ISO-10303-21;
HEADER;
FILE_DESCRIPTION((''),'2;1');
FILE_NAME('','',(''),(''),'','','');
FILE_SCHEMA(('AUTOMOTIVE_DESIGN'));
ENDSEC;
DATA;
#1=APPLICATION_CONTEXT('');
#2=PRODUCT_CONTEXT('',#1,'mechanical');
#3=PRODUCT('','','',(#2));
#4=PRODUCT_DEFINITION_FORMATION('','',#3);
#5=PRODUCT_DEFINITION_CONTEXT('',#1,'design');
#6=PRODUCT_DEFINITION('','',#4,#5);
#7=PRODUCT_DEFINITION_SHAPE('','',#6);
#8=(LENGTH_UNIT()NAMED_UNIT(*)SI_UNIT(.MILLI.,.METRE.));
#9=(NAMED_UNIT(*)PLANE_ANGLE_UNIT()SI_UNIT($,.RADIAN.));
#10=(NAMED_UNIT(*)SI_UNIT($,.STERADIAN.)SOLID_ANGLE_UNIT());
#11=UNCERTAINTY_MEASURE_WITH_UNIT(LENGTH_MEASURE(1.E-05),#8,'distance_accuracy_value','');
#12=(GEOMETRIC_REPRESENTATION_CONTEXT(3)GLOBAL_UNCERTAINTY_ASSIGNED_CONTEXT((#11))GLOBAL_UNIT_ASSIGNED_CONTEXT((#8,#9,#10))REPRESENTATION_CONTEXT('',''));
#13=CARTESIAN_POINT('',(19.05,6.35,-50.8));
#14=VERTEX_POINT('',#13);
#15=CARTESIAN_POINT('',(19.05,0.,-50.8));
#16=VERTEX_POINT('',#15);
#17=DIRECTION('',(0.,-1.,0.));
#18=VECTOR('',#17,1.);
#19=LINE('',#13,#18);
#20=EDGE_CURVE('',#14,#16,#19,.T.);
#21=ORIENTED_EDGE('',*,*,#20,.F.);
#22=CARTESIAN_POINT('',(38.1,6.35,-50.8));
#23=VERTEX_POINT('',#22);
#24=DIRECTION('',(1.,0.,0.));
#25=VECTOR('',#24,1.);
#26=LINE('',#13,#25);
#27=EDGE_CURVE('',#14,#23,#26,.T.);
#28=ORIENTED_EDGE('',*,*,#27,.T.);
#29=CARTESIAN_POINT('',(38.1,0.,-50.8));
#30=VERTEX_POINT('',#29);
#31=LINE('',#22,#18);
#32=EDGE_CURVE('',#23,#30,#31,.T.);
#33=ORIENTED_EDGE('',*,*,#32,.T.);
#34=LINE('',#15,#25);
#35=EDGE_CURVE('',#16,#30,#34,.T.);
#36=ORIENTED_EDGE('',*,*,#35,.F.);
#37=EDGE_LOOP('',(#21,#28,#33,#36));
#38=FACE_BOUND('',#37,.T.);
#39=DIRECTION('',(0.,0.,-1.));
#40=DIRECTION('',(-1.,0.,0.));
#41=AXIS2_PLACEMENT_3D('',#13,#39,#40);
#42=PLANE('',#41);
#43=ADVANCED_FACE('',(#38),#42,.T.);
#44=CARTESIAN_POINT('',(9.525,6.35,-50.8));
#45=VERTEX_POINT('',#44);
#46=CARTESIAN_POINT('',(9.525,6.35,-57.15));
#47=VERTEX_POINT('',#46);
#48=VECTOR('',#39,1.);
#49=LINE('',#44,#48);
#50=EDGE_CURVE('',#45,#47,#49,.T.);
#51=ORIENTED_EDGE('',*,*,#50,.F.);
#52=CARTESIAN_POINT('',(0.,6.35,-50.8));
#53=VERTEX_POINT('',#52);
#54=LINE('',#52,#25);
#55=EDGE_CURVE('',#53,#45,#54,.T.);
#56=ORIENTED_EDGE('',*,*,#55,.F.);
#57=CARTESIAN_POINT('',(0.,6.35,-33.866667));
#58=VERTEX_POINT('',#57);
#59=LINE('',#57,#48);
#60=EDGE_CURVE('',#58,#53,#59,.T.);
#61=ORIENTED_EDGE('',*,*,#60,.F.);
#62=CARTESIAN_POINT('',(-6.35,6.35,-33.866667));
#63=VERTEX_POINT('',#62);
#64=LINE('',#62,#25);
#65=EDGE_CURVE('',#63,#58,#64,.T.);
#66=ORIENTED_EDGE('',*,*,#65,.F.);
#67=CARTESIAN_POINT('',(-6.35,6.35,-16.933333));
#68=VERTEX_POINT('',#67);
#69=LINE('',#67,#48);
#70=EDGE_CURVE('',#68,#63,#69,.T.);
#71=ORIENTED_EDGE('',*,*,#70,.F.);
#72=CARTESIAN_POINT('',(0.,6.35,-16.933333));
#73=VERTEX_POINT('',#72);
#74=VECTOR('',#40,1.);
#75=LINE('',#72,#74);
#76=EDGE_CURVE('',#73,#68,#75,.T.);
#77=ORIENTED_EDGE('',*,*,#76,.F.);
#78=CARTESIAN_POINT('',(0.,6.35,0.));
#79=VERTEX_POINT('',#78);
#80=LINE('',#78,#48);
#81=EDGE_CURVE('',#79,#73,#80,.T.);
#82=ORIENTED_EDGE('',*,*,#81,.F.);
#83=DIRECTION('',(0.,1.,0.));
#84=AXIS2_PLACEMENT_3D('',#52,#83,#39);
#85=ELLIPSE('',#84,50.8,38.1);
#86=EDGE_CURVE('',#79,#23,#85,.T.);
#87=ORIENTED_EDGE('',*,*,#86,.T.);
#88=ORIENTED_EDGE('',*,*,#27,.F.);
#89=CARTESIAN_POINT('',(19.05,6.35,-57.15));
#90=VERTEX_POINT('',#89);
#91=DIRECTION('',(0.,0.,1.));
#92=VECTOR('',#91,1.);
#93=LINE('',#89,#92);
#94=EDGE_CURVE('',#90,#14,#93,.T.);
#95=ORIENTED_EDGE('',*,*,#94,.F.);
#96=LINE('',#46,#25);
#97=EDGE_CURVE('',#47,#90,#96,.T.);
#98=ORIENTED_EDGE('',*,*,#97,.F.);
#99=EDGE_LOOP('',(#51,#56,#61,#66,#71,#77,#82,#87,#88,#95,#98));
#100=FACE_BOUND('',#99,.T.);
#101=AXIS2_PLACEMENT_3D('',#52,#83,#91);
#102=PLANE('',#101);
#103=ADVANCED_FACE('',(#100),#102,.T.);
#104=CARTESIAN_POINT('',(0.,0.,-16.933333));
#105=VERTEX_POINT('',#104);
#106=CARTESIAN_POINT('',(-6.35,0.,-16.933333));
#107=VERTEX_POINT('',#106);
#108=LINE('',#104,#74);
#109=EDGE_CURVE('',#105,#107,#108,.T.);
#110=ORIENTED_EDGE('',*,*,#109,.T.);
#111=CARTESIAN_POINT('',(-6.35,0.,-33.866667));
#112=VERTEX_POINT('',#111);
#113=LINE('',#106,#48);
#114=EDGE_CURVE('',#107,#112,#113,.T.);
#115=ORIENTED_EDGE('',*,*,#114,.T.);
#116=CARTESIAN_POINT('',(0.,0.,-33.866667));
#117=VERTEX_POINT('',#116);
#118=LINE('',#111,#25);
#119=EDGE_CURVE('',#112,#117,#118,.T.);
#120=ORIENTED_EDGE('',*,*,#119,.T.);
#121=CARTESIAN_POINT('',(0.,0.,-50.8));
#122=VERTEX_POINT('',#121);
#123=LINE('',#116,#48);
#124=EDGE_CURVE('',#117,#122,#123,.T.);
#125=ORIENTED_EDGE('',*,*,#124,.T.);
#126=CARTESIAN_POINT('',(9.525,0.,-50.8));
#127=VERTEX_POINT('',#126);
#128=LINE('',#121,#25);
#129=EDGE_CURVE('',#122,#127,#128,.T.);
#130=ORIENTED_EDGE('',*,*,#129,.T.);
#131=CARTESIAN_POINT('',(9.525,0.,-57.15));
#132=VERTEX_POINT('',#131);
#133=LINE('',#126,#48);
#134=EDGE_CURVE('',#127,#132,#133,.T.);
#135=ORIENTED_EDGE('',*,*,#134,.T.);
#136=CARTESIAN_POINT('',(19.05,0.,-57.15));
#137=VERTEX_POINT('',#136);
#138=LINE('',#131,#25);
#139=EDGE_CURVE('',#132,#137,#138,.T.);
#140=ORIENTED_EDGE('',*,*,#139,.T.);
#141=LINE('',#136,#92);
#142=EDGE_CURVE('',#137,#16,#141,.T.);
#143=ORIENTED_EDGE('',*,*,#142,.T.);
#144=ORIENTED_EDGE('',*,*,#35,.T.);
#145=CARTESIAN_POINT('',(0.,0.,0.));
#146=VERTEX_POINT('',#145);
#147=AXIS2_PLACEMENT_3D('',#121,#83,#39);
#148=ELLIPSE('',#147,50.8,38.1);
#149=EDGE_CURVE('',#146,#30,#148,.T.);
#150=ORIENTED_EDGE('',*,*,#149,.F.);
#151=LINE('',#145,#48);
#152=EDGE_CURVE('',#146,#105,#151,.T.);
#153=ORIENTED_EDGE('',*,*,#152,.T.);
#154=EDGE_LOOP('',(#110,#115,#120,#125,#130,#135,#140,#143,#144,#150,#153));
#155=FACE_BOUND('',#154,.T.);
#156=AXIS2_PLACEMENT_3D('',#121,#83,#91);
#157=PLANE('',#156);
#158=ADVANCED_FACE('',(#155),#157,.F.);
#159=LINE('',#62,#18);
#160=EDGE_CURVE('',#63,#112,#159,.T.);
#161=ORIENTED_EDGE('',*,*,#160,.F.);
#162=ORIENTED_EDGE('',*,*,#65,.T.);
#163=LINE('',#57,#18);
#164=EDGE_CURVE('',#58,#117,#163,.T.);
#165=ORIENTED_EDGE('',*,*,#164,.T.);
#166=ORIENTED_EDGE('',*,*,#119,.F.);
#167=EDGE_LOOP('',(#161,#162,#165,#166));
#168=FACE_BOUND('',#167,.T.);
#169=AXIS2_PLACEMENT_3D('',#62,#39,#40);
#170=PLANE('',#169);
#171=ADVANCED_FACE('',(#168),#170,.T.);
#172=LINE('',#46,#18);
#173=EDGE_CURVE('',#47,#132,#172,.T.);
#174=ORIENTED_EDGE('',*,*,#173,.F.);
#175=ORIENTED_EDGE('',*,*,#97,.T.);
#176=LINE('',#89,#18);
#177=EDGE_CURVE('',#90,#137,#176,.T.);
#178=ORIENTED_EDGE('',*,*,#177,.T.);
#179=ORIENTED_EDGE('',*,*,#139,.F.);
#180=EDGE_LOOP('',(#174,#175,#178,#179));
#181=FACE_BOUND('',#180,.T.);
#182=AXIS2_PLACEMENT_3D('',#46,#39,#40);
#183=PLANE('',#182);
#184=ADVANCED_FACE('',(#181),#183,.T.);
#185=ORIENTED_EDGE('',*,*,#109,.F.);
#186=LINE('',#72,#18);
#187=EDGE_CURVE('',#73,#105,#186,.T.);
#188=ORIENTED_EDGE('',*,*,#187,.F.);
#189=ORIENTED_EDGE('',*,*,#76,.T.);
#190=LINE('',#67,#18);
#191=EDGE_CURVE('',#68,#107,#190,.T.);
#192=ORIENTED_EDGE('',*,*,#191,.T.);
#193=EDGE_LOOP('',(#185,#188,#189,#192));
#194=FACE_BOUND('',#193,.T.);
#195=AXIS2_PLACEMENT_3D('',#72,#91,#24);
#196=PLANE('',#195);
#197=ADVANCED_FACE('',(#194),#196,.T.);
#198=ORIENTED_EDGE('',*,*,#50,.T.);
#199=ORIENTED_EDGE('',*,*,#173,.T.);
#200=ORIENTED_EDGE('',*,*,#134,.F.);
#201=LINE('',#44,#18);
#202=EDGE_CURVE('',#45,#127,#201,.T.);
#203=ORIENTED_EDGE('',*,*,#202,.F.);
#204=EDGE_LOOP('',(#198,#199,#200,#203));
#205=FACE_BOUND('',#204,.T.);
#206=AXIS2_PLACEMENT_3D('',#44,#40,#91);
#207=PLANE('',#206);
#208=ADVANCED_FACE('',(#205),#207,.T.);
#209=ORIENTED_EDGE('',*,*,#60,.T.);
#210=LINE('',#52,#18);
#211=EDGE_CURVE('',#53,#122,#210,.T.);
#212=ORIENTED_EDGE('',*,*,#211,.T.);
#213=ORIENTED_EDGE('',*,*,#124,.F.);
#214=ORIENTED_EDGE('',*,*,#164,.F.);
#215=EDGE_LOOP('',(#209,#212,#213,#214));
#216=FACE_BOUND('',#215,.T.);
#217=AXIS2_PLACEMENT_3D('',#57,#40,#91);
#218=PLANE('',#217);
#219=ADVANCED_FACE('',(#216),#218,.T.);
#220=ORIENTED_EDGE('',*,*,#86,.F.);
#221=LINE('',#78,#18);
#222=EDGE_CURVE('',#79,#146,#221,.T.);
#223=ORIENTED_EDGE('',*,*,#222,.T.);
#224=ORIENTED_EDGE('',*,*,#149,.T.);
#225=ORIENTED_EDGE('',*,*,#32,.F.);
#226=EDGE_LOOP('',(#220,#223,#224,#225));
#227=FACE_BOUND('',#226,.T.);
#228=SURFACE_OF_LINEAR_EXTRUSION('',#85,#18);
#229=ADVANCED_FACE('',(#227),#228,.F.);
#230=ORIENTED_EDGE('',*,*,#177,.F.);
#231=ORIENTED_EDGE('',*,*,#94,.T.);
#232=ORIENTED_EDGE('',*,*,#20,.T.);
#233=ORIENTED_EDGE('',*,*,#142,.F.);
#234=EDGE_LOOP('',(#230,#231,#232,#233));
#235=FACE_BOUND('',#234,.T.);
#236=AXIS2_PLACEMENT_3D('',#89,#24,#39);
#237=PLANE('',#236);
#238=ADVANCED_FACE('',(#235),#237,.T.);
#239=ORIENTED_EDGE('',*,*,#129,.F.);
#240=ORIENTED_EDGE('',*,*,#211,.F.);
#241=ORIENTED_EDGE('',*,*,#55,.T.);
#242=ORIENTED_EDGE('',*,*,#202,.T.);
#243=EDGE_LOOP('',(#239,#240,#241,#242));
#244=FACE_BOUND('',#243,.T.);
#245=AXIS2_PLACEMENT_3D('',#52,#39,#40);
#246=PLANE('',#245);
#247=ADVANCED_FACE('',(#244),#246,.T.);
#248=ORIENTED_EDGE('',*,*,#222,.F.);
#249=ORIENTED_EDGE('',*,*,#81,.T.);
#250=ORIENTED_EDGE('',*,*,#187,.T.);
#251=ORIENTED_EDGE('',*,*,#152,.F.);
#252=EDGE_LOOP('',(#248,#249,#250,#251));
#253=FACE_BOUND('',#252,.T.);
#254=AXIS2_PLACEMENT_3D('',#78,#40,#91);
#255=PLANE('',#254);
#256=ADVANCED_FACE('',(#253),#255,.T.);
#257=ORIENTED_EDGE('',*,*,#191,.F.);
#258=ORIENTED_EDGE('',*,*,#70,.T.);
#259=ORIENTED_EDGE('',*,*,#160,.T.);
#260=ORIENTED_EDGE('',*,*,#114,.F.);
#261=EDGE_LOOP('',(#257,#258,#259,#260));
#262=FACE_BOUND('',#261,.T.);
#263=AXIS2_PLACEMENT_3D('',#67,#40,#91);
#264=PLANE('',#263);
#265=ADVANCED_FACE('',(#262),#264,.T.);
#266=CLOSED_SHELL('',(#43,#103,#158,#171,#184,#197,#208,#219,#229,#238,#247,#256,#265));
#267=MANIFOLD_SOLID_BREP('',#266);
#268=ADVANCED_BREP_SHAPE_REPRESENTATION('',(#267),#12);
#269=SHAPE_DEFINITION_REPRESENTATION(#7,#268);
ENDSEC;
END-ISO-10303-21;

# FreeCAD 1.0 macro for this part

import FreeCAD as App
import Part
import Sketcher

V = App.Vector
Q = App.Units.Quantity

doc = App.newDocument("Part")
params = doc.addObject("Spreadsheet::Sheet", "Params")
for row, (alias, value) in enumerate([
    ("sketch1_width", "0.75 in"),
    ("pad1_length", "0.25 in"),
], start=1):
    params.set(f"A{row}", alias)
    params.set(f"B{row}", "=" + value)
    params.setAlias(f"B{row}", alias)

body = doc.addObject("PartDesign::Body", "Body")

sketch1 = doc.addObject("Sketcher::SketchObject", "Sketch")
body.addObject(sketch1)
sketch1.AttachmentSupport = (doc.XZ_Plane, [""])
sketch1.MapMode = "FlatFace"
sketch1.addGeometry([
    Part.LineSegment(V(0, -16.933333, 0), V(0, 0, 0)),
    Part.BSplineCurve([V(0, 0, 0), V(38.1, 0, 0), V(38.1, -50.8, 0)], [3, 3], [3.141592654, 4.71238898], False, 2, [1, 0.707106781, 1], False),
    Part.LineSegment(V(38.1, -50.8, 0), V(19.05, -50.8, 0)),
    Part.LineSegment(V(19.05, -50.8, 0), V(19.05, -57.15, 0)),
    Part.LineSegment(V(19.05, -57.15, 0), V(9.525, -57.15, 0)),
    Part.LineSegment(V(9.525, -57.15, 0), V(9.525, -50.8, 0)),
    Part.LineSegment(V(9.525, -50.8, 0), V(0, -50.8, 0)),
    Part.LineSegment(V(0, -50.8, 0), V(0, -33.866667, 0)),
    Part.LineSegment(V(0, -33.866667, 0), V(-6.35, -33.866667, 0)),
    Part.LineSegment(V(-6.35, -33.866667, 0), V(-6.35, -16.933333, 0)),
    Part.LineSegment(V(-6.35, -16.933333, 0), V(0, -16.933333, 0)),
], False)
sketch1.addConstraint([
    Sketcher.Constraint("Block", 1),
    Sketcher.Constraint("Coincident", 0, 2, 1, 1),
    Sketcher.Constraint("Coincident", 1, 2, 2, 1),
    Sketcher.Constraint("Coincident", 2, 2, 3, 1),
    Sketcher.Constraint("Coincident", 3, 2, 4, 1),
    Sketcher.Constraint("Coincident", 4, 2, 5, 1),
    Sketcher.Constraint("Coincident", 5, 2, 6, 1),
    Sketcher.Constraint("Coincident", 6, 2, 7, 1),
    Sketcher.Constraint("Coincident", 7, 2, 8, 1),
    Sketcher.Constraint("Coincident", 8, 2, 9, 1),
    Sketcher.Constraint("Coincident", 9, 2, 10, 1),
    Sketcher.Constraint("Coincident", 10, 2, 0, 1),
    Sketcher.Constraint("Vertical", 0),
    Sketcher.Constraint("Horizontal", 2),
    Sketcher.Constraint("Vertical", 3),
    Sketcher.Constraint("Horizontal", 4),
    Sketcher.Constraint("Vertical", 5),
    Sketcher.Constraint("Horizontal", 6),
    Sketcher.Constraint("Vertical", 7),
    Sketcher.Constraint("Horizontal", 8),
    Sketcher.Constraint("Vertical", 9),
    Sketcher.Constraint("Horizontal", 10),
    Sketcher.Constraint("PointOnObject", 6, 2, -2),
    Sketcher.Constraint("Horizontal", 2, 2, 5, 2),
    Sketcher.Constraint("Equal", 4, 6),
    Sketcher.Constraint("Equal", 10, 3),
    Sketcher.Constraint("Equal", 0, 7),
    Sketcher.Constraint("Equal", 7, 9),
    Sketcher.Constraint("DistanceX", 8, 2, 2, 2, Q("1 in")),
    Sketcher.Constraint("DistanceX", 2, 2, 2, 1, Q("0.75 in")),
])
sketch1.setExpression("Constraints[29]", "Params.sketch1_width")
pad1 = doc.addObject("PartDesign::Pad", "Pad")
body.addObject(pad1)
pad1.Profile = sketch1
pad1.setExpression("Length", "Params.pad1_length")
pad1.Reversed = True

doc.recompute()
